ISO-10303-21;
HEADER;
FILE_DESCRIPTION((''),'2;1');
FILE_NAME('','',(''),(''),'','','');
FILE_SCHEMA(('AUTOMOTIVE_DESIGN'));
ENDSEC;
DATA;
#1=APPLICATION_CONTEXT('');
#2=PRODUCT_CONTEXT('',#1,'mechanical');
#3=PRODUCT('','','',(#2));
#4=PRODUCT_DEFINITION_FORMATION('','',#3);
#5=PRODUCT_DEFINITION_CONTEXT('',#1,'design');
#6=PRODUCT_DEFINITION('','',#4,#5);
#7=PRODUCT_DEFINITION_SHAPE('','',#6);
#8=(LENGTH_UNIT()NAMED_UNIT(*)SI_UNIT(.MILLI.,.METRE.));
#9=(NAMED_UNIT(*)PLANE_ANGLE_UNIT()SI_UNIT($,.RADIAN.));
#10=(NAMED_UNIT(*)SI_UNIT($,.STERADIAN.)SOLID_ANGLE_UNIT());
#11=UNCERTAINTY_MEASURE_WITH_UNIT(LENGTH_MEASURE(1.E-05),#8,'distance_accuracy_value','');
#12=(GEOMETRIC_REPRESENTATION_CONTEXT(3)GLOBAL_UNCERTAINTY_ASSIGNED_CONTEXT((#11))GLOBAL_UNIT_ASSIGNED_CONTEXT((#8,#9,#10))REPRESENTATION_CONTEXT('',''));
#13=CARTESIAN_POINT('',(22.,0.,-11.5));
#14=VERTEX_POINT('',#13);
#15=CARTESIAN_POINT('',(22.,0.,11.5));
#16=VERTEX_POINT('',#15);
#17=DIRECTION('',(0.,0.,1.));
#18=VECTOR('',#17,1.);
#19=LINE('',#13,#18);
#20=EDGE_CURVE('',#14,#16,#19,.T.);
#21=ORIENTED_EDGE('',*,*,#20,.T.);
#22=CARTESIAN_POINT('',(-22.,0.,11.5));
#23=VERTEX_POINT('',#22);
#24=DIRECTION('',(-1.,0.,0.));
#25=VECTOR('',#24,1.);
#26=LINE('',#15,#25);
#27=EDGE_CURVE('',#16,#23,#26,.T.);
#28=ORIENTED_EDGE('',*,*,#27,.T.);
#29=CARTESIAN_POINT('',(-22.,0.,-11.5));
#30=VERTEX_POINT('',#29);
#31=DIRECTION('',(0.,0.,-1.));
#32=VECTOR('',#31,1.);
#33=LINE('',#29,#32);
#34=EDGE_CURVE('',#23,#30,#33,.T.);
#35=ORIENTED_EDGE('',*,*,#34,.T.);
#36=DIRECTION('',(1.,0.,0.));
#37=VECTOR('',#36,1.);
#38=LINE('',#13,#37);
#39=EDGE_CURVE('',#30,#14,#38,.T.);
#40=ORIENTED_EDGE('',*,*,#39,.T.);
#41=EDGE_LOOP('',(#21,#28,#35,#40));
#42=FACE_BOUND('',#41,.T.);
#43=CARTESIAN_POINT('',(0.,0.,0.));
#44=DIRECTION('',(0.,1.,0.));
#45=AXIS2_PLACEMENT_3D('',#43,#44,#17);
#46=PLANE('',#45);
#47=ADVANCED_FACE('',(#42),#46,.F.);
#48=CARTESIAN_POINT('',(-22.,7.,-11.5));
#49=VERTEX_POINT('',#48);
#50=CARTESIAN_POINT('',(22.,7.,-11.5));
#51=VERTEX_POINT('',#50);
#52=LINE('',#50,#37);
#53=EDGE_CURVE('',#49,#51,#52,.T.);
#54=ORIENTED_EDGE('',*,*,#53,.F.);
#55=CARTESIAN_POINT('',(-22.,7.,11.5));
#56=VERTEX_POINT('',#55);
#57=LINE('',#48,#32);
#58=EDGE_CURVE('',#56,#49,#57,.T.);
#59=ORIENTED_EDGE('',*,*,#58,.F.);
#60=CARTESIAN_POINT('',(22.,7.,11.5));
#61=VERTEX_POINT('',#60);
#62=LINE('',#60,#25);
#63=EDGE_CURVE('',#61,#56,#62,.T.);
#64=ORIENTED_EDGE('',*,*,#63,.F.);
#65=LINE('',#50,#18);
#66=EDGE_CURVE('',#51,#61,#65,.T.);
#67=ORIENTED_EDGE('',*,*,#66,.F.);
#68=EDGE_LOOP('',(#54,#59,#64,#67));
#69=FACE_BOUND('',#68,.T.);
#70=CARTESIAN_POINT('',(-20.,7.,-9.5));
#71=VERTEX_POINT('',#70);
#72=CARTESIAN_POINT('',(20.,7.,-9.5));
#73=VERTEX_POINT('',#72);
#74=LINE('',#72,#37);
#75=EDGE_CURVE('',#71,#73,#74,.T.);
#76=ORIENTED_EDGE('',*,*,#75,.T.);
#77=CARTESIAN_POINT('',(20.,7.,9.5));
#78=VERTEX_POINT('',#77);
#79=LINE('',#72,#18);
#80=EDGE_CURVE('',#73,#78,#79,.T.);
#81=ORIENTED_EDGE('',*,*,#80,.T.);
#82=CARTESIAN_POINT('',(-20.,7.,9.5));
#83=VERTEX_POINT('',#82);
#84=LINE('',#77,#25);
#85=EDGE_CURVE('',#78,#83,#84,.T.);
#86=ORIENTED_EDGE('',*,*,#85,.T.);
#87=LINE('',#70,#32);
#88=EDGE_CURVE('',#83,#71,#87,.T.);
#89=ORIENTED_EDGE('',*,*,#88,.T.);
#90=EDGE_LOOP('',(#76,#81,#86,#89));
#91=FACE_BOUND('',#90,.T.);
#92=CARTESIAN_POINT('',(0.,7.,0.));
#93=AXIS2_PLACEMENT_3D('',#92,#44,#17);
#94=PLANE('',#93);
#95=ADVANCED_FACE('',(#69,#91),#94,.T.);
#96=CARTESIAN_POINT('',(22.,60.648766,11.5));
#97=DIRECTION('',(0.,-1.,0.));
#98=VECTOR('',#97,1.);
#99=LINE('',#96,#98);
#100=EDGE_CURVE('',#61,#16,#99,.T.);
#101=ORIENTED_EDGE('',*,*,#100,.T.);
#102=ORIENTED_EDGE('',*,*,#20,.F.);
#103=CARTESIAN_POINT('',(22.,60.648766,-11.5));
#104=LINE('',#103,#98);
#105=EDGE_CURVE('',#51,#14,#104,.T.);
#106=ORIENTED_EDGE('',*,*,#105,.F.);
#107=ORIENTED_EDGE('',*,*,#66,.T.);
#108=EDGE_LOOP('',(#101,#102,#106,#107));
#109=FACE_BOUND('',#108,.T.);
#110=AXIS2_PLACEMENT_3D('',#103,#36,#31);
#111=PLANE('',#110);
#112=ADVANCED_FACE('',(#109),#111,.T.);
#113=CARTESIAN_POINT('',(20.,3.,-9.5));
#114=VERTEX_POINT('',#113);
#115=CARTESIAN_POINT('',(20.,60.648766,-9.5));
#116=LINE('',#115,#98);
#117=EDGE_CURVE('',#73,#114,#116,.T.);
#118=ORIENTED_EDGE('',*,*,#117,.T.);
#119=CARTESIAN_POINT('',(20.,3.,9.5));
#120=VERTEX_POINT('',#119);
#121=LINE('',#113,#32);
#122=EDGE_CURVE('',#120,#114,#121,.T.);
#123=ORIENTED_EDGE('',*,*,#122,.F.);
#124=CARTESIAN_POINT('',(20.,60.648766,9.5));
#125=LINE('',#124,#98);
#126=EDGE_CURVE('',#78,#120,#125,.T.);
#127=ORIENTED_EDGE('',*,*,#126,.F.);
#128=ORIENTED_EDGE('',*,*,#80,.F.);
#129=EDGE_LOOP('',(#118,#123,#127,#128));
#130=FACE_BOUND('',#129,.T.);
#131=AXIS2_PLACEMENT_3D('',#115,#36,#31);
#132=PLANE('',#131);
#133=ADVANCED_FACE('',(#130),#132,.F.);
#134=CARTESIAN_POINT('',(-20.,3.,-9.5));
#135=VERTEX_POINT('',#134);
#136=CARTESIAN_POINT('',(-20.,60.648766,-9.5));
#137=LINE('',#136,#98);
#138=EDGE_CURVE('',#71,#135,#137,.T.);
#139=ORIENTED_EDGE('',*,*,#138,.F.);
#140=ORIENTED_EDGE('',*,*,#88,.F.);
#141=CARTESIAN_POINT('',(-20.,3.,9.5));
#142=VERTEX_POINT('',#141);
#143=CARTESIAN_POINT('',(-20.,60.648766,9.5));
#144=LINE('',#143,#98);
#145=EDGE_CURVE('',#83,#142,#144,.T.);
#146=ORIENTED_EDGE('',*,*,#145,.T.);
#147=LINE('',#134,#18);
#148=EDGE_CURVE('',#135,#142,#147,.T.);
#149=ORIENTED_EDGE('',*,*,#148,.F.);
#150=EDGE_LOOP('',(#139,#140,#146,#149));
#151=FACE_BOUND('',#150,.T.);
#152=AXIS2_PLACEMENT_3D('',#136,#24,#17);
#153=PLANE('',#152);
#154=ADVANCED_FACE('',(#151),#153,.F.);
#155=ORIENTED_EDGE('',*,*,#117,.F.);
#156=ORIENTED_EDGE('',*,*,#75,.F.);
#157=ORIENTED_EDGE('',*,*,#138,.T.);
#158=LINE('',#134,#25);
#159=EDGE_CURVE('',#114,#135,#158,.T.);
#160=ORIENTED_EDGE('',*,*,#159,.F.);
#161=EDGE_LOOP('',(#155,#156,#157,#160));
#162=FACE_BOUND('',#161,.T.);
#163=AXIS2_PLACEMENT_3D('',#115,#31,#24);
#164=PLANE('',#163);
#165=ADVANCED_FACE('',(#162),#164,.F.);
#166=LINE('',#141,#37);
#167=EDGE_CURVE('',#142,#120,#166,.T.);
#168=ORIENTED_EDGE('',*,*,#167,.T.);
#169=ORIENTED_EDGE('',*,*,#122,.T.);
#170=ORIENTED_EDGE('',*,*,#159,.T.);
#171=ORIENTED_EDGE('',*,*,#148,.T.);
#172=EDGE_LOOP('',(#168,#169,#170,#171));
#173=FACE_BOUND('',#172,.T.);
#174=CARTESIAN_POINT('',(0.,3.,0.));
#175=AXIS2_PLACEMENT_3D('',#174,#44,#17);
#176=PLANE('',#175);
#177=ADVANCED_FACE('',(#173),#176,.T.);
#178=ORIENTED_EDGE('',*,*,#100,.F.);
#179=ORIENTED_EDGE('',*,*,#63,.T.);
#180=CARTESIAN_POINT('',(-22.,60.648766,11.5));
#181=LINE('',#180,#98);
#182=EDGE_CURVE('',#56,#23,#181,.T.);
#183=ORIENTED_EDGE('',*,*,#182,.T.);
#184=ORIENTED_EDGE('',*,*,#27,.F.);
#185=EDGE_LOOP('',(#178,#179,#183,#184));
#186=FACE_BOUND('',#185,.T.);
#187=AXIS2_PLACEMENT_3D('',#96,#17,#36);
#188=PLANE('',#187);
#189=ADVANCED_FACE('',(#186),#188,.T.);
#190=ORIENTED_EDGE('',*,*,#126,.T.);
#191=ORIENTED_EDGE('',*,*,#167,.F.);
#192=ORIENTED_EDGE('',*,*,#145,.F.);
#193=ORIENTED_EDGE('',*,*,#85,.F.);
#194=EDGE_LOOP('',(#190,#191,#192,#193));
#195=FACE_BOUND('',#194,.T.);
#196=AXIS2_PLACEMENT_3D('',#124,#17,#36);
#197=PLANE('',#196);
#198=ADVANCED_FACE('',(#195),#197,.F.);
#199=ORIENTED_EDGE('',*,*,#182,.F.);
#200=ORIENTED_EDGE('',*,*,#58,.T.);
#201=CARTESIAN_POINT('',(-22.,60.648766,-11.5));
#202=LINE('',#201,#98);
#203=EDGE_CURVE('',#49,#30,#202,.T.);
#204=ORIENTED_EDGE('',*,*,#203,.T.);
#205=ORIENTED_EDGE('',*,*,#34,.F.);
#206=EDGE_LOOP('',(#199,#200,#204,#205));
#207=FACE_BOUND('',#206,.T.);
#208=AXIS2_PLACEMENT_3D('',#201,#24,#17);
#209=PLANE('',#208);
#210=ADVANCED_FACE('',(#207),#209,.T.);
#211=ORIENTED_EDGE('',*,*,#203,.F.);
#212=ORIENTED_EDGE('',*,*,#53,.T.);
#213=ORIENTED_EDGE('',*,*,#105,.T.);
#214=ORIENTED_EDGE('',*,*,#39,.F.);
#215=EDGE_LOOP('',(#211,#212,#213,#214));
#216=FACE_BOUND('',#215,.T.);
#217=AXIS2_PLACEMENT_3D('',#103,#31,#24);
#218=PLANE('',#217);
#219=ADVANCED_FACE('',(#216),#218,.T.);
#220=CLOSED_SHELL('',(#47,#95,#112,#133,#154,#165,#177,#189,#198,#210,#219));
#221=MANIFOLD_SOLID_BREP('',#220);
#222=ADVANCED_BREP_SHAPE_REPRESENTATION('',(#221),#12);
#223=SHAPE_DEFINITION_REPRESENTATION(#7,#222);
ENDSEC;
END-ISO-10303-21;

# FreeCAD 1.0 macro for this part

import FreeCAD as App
import Part
import Sketcher
Q = App.Units.Quantity

doc = App.newDocument("Part")
body = doc.addObject("PartDesign::Body", "Body")

# Sketch on XZ plane
sketch1 = body.newObject("Sketcher::SketchObject", "Sketch")
sketch1.AttachmentSupport = (doc.getObject("XZ_Plane"), [""])
sketch1.MapMode = "FlatFace"
sketch1.addGeometry([
    Part.LineSegment(App.Vector(-20, -9.5, 0), App.Vector(-20, 9.5, 0)),
    Part.LineSegment(App.Vector(-20, 9.5, 0), App.Vector(20, 9.5, 0)),
    Part.LineSegment(App.Vector(20, 9.5, 0), App.Vector(20, -9.5, 0)),
    Part.LineSegment(App.Vector(20, -9.5, 0), App.Vector(-20, -9.5, 0)),
], False)
sketch1.addConstraint([
    Sketcher.Constraint("Coincident", 0, 2, 1, 1),
    Sketcher.Constraint("Coincident", 1, 2, 2, 1),
    Sketcher.Constraint("Coincident", 2, 2, 3, 1),
    Sketcher.Constraint("Coincident", 3, 2, 0, 1),
    Sketcher.Constraint("Vertical", 0),
    Sketcher.Constraint("Horizontal", 1),
    Sketcher.Constraint("Vertical", 2),
    Sketcher.Constraint("Horizontal", 3),
    Sketcher.Constraint("Symmetric", 0, 2, 2, 2, -1, 1),
    Sketcher.Constraint("DistanceX", 1, 1, 1, 2, Q("40 mm")),
    Sketcher.Constraint("DistanceY", 0, 1, 0, 2, Q("19 mm")),
])
pad1 = body.newObject("PartDesign::Pad", "Pad")
pad1.Profile = sketch1
pad1.Length = 3
pad1.Reversed = True

# Sketch on XZ plane
sketch2 = body.newObject("Sketcher::SketchObject", "Sketch001")
sketch2.AttachmentSupport = (doc.getObject("XZ_Plane"), [""])
sketch2.MapMode = "FlatFace"
sketch2.addGeometry([
    Part.LineSegment(App.Vector(-22, 11.5, 0), App.Vector(-22, -11.5, 0)),  # 0
    Part.LineSegment(App.Vector(-22, -11.5, 0), App.Vector(22, -11.5, 0)),  # 1
    Part.LineSegment(App.Vector(22, -11.5, 0), App.Vector(22, 11.5, 0)),  # 2
    Part.LineSegment(App.Vector(22, 11.5, 0), App.Vector(-22, 11.5, 0)),  # 3
    Part.LineSegment(App.Vector(20, -9.5, 0), App.Vector(-20, -9.5, 0)),  # 4
    Part.LineSegment(App.Vector(-20, -9.5, 0), App.Vector(-20, 9.5, 0)),  # 5
    Part.LineSegment(App.Vector(-20, 9.5, 0), App.Vector(20, 9.5, 0)),  # 6
    Part.LineSegment(App.Vector(20, 9.5, 0), App.Vector(20, -9.5, 0)),  # 7
], False)
sketch2.addConstraint([
    Sketcher.Constraint("Coincident", 0, 2, 1, 1),
    Sketcher.Constraint("Coincident", 1, 2, 2, 1),
    Sketcher.Constraint("Coincident", 2, 2, 3, 1),
    Sketcher.Constraint("Coincident", 3, 2, 0, 1),
    Sketcher.Constraint("Coincident", 4, 2, 5, 1),
    Sketcher.Constraint("Coincident", 5, 2, 6, 1),
    Sketcher.Constraint("Coincident", 6, 2, 7, 1),
    Sketcher.Constraint("Coincident", 7, 2, 4, 1),
    Sketcher.Constraint("Vertical", 0),
    Sketcher.Constraint("Horizontal", 1),
    Sketcher.Constraint("Vertical", 2),
    Sketcher.Constraint("Horizontal", 3),
    Sketcher.Constraint("Horizontal", 4),
    Sketcher.Constraint("Vertical", 5),
    Sketcher.Constraint("Horizontal", 6),
    Sketcher.Constraint("Vertical", 7),
    Sketcher.Constraint("Symmetric", 0, 2, 2, 2, -1, 1),
    Sketcher.Constraint("Symmetric", 4, 2, 6, 2, -1, 1),
    Sketcher.Constraint("DistanceX", 1, 1, 1, 2, Q("44 mm")),
    Sketcher.Constraint("DistanceX", 4, 2, 4, 1, Q("40 mm")),
    Sketcher.Constraint("DistanceY", 0, 2, 0, 1, Q("23 mm")),
    Sketcher.Constraint("DistanceY", 5, 1, 5, 2, Q("19 mm")),
])
pad2 = body.newObject("PartDesign::Pad", "Pad001")
pad2.Profile = sketch2
pad2.Length = 7
pad2.Reversed = True

doc.recompute()
